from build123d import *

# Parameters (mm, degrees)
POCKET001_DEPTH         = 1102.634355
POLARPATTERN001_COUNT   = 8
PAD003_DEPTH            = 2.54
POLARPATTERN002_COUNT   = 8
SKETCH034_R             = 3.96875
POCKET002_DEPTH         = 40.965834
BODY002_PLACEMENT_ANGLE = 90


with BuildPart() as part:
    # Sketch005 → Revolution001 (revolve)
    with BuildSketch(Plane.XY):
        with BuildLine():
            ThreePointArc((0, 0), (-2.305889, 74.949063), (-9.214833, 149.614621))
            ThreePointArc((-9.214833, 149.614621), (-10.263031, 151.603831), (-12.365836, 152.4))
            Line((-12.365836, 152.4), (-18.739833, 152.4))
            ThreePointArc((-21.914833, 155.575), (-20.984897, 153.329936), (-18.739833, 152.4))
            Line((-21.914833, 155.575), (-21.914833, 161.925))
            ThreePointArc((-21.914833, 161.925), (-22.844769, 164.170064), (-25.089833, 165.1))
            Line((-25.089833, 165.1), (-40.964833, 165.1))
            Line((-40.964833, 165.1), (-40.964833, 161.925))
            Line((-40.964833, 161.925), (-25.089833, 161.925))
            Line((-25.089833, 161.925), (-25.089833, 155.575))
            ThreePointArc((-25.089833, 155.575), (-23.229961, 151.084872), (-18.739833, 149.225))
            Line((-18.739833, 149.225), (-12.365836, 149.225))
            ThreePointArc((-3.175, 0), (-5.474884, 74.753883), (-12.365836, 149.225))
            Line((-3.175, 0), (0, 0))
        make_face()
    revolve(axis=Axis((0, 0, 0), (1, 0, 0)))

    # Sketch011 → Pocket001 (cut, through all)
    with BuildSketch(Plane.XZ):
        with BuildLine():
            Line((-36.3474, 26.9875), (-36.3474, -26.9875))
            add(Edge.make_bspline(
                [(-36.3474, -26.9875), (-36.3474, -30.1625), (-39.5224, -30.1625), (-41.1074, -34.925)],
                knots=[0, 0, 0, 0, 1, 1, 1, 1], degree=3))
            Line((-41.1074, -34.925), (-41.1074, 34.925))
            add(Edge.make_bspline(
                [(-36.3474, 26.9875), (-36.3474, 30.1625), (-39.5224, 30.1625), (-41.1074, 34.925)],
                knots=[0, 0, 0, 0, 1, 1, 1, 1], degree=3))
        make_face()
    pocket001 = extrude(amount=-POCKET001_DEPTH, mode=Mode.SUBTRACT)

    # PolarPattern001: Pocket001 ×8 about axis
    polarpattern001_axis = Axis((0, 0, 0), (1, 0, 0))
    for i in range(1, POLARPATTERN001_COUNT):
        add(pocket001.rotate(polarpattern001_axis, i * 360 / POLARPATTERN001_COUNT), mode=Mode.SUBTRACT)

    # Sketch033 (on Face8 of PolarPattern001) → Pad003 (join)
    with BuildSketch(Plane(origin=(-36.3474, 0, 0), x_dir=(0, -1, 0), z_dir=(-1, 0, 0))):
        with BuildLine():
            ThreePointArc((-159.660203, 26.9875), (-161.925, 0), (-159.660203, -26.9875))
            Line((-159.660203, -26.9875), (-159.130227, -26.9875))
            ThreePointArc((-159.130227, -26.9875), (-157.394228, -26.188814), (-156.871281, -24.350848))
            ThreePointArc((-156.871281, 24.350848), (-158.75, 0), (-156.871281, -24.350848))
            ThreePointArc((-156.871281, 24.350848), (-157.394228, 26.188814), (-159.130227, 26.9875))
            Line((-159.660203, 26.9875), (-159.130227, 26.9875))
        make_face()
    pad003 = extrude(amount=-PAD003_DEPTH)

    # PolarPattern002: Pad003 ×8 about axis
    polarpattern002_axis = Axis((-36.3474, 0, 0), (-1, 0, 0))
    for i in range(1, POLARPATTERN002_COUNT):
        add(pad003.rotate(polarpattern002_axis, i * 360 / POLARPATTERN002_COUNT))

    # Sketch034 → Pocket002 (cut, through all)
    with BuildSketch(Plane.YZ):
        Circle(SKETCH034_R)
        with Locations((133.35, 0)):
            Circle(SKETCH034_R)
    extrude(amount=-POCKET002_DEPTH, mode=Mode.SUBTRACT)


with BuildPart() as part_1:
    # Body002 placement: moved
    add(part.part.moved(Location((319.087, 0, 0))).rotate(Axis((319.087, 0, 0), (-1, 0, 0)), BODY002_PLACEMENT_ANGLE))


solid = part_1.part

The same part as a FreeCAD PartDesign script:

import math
import FreeCAD as App
import Part
import Sketcher

V = App.Vector
Q = App.Units.Quantity

doc = App.newDocument("Part")
params = doc.addObject("Spreadsheet::Sheet", "Params")
for row, (alias, value) in enumerate([
    ("sketch1_radius", "0.25 in"),
    ("sketch1_height", "0.25 in"),
    ("sketch1_width", "0.625 in"),
    ("revolution_angle", "360 deg"),
    ("sketch3_radius", "0.09 in"),
    ("pad1_length", "0.1 in"),
    ("sketch4_diameter", "0.3125 in"),
], start=1):
    params.set(f"A{row}", alias)
    params.set(f"B{row}", "=" + value)
    params.setAlias(f"B{row}", alias)

body = doc.addObject("PartDesign::Body", "Body")

sketch1 = body.newObject("Sketcher::SketchObject", "Sketch")
sketch1.AttachmentSupport = (doc.getObject("XY_Plane"), [""])
sketch1.MapMode = "FlatFace"
sketch1.addGeometry([
    Part.ArcOfCircle(Part.Circle(V(-1219.200034, -0.000005, 0), V(0, 0, 1), 1219.200034), math.radians(0), math.radians(7.048842)),
    Part.ArcOfCircle(Part.Circle(V(-12.365836, 149.225001, 0), V(0, 0, 1), 3.174999), math.radians(7.048826), math.radians(90.000007)),
    Part.LineSegment(V(-12.365836, 152.4, 0), V(-18.739833, 152.4, 0)),
    Part.ArcOfCircle(Part.Circle(V(-18.739833, 155.575, 0), V(0, 0, 1), 3.175), math.radians(-179.999998), math.radians(-90.000002)),
    Part.LineSegment(V(-21.914833, 155.575, 0), V(-21.914833, 161.925, 0)),
    Part.ArcOfCircle(Part.Circle(V(-25.089833, 161.925, 0), V(0, 0, 1), 3.175), math.radians(0.000002), math.radians(89.999998)),
    Part.LineSegment(V(-25.089833, 165.1, 0), V(-40.964833, 165.1, 0)),
    Part.LineSegment(V(-40.964833, 165.1, 0), V(-40.964833, 161.925, 0)),
    Part.LineSegment(V(-40.964833, 161.925, 0), V(-25.089833, 161.925, 0)),
    Part.LineSegment(V(-25.089833, 161.925, 0), V(-25.089833, 155.575, 0)),
    Part.ArcOfCircle(Part.Circle(V(-18.739833, 155.575, 0), V(0, 0, 1), 6.35), math.radians(-179.999998), math.radians(-90.000002)),
    Part.LineSegment(V(-18.739833, 149.225, 0), V(-12.365836, 149.225, 0)),
    Part.ArcOfCircle(Part.Circle(V(-1219.20002, -0.000003, 0), V(0, 0, 1), 1216.02502), math.radians(0), math.radians(7.048842)),
    Part.LineSegment(V(-3.175, 0, 0), V(0, 0, 0)),
], False)
sketch1.addConstraint([
    Sketcher.Constraint("Tangent", 0, 2, 1, 1),
    Sketcher.Constraint("Tangent", 1, 2, 2, 1),
    Sketcher.Constraint("Tangent", 2, 2, 3, 2),
    Sketcher.Constraint("Tangent", 3, 1, 4, 1),
    Sketcher.Constraint("Tangent", 4, 2, 5, 1),
    Sketcher.Constraint("Tangent", 5, 2, 6, 1),
    Sketcher.Constraint("Coincident", 6, 2, 7, 1),
    Sketcher.Constraint("Coincident", 7, 2, 8, 1),
    Sketcher.Constraint("Coincident", 8, 2, 9, 1),
    Sketcher.Constraint("Tangent", 9, 2, 10, 1),
    Sketcher.Constraint("Tangent", 10, 2, 11, 1),
    Sketcher.Constraint("Coincident", 11, 2, 12, 2),
    Sketcher.Constraint("Coincident", 12, 1, 13, 1),
    Sketcher.Constraint("Coincident", 13, 2, 0, 1),
    Sketcher.Constraint("Horizontal", 2),
    Sketcher.Constraint("Vertical", 4),
    Sketcher.Constraint("Horizontal", 6),
    Sketcher.Constraint("Vertical", 7),
    Sketcher.Constraint("Horizontal", 8),
    Sketcher.Constraint("Vertical", 9),
    Sketcher.Constraint("Horizontal", 11),
    Sketcher.Constraint("Horizontal", 13),
    Sketcher.Constraint("Coincident", 13, 2, -1, 1),
    Sketcher.Constraint("Coincident", 10, 3, 3, 3),
    Sketcher.Constraint("Coincident", 8, 2, 5, 3),
    Sketcher.Constraint("Coincident", 11, 2, 1, 3),
    Sketcher.Constraint("Equal", 1, 3),
    Sketcher.Constraint("Horizontal", 0, 3, 12, 3),
    Sketcher.Constraint("Equal", 13, 7),
    Sketcher.Constraint("Radius", 10, Q("0.25 in")),
    Sketcher.Constraint("DistanceY", -1, 1, 1, 2, Q("6 in")),
    Sketcher.Constraint("DistanceY", 4, 1, 4, 2, Q("0.25 in")),
    Sketcher.Constraint("DistanceX", 6, 2, 6, 1, Q("0.625 in")),
    Sketcher.Constraint("Radius", 12, 1216.02502),
    Sketcher.Constraint("DistanceY", 0, 3, 3, 3, Q("6.1250002 in")),
    Sketcher.Constraint("DistanceX", 0, 3, 3, 3, 1200.460201),
])
sketch1.setExpression("Constraints[29]", "Params.sketch1_radius")
sketch1.setExpression("Constraints[31]", "Params.sketch1_height")
sketch1.setExpression("Constraints[32]", "Params.sketch1_width")
revolution = body.newObject("PartDesign::Revolution", "Revolution")
revolution.Profile = sketch1
revolution.ReferenceAxis = (sketch1, ["H_Axis"])
revolution.setExpression("Angle", "Params.revolution_angle")

sketch2 = body.newObject("Sketcher::SketchObject", "Sketch001")
sketch2.AttachmentSupport = (doc.getObject("XZ_Plane"), [""])
sketch2.MapMode = "FlatFace"
sketch2.addGeometry([
    Part.LineSegment(V(-36.3474, -26.9875, 0), V(-36.3474, 26.9875, 0)),
    Part.BSplineCurve([V(-36.3474, 26.9875, 0), V(-36.3474, 30.1625, 0), V(-39.5224, 30.1625, 0), V(-41.1074, 34.925, 0)], [4, 4], [0, 1], False, 3, [1, 1, 1, 1], False),
    Part.LineSegment(V(-41.1074, 34.925, 0), V(-41.1074, -34.925, 0)),
    Part.BSplineCurve([V(-36.3474, -26.9875, 0), V(-36.3474, -30.1625, 0), V(-39.5224, -30.1625, 0), V(-41.1074, -34.925, 0)], [4, 4], [0, 1], False, 3, [1, 1, 1, 1], False),
], False)
sketch2.addConstraint([
    Sketcher.Constraint("Block", 1),
    Sketcher.Constraint("Block", 3),
    Sketcher.Constraint("Coincident", 0, 2, 1, 1),
    Sketcher.Constraint("Coincident", 1, 2, 2, 1),
    Sketcher.Constraint("Coincident", 2, 2, 3, 2),
    Sketcher.Constraint("Coincident", 3, 1, 0, 1),
])
pocket1 = body.newObject("PartDesign::Pocket", "Pocket")
pocket1.Profile = sketch2
pocket1.Type = "ThroughAll"
doc.recompute()

polarpattern = body.newObject("PartDesign::PolarPattern", "PolarPattern")
polarpattern.Originals = [pocket1]
polarpattern.Axis = (doc.getObject("X_Axis"), [""])
polarpattern.Angle = 360
polarpattern.Occurrences = 8
body.Tip = polarpattern

sketch3 = body.newObject("Sketcher::SketchObject", "Sketch002")
sketch3.AttachmentSupport = (doc.getObject("YZ_Plane"), [""])
sketch3.MapMode = "FlatFace"
sketch3.AttachmentOffset = App.Placement(V(0, 0, -1.431 * 25.4), App.Rotation())
sketch3.addGeometry([
    Part.ArcOfCircle(Part.Circle(V(0.00001, 0, 0), V(0, 0, 1), 161.92499), math.radians(-9.594069), math.radians(9.594069)),
    Part.LineSegment(V(159.660203, -26.9875, 0), V(159.130227, -26.9875, 0)),
    Part.ArcOfCircle(Part.Circle(V(159.130227, -24.7015, 0), V(0, 0, 1), 2.286), math.radians(171.176491), math.radians(270.000001)),
    Part.ArcOfCircle(Part.Circle(V(-0.000027, 0, 0), V(0, 0, 1), 158.750027), math.radians(-8.8235), math.radians(8.8235)),
    Part.ArcOfCircle(Part.Circle(V(159.130227, 24.7015, 0), V(0, 0, 1), 2.286), math.radians(89.999999), math.radians(188.823509)),
    Part.LineSegment(V(159.130227, 26.9875, 0), V(159.660203, 26.9875, 0)),
], False)
sketch3.addConstraint([
    Sketcher.Constraint("Coincident", 0, 1, 1, 1),
    Sketcher.Constraint("Tangent", 1, 2, 2, 2),
    Sketcher.Constraint("Tangent", 2, 1, 3, 1),
    Sketcher.Constraint("Tangent", 3, 2, 4, 2),
    Sketcher.Constraint("Tangent", 4, 1, 5, 1),
    Sketcher.Constraint("Coincident", 5, 2, 0, 2),
    Sketcher.Constraint("Horizontal", 1),
    Sketcher.Constraint("Horizontal", 5),
    Sketcher.Constraint("Equal", 2, 4),
    Sketcher.Constraint("Symmetric", 2, 3, 4, 3, -1),
    Sketcher.Constraint("PointOnObject", 0, 3, -1),
    Sketcher.Constraint("Radius", 2, Q("0.09 in")),
    Sketcher.Constraint("DistanceY", 0, 1, -1, 1, Q("1.0625 in")),
    Sketcher.Constraint("Radius", 0, 161.92499),
    Sketcher.Constraint("Radius", 3, 158.750027),
    Sketcher.Constraint("DistanceX", 2, 1, 0, 1, Q("0.1098001 in")),
    Sketcher.Constraint("DistanceX", -1, 1, 2, 1, 156.871281),
])
sketch3.setExpression("Constraints[11]", "Params.sketch3_radius")
pad1 = body.newObject("PartDesign::Pad", "Pad")
pad1.Profile = sketch3
pad1.setExpression("Length", "Params.pad1_length")
doc.recompute()

polarpattern2 = body.newObject("PartDesign::PolarPattern", "PolarPattern001")
polarpattern2.Originals = [pad1]
polarpattern2.Axis = (doc.getObject("X_Axis"), [""])
polarpattern2.Angle = 360
polarpattern2.Occurrences = 8
body.Tip = polarpattern2

sketch4 = body.newObject("Sketcher::SketchObject", "Sketch003")
sketch4.AttachmentSupport = (doc.getObject("YZ_Plane"), [""])
sketch4.MapMode = "FlatFace"
sketch4.addGeometry([
    Part.Circle(V(0, 0, 0), V(0, 0, 1), 3.96875),
    Part.Circle(V(133.35, 0, 0), V(0, 0, 1), 3.96875),
], False)
sketch4.addConstraint([
    Sketcher.Constraint("Coincident", 0, 3, -1, 1),
    Sketcher.Constraint("Equal", 0, 1),
    Sketcher.Constraint("PointOnObject", 1, 3, -1),
    Sketcher.Constraint("Diameter", 0, Q("0.3125 in")),
    Sketcher.Constraint("DistanceX", -1, 1, 1, 3, Q("5.25 in")),
])
sketch4.setExpression("Constraints[3]", "Params.sketch4_diameter")
pocket2 = body.newObject("PartDesign::Pocket", "Pocket001")
pocket2.Profile = sketch4
pocket2.Type = "ThroughAll"
body2 = doc.addObject("PartDesign::Body", "Body001")
doc.recompute()

body.Placement = App.Placement(V(319.087, 0, 0), App.Rotation(V(-1, 0, 0), 90))
boolean = body2.newObject("PartDesign::Boolean", "Boolean")
boolean.Type = "Fuse"
boolean.addObjects([body])

doc.recompute()
